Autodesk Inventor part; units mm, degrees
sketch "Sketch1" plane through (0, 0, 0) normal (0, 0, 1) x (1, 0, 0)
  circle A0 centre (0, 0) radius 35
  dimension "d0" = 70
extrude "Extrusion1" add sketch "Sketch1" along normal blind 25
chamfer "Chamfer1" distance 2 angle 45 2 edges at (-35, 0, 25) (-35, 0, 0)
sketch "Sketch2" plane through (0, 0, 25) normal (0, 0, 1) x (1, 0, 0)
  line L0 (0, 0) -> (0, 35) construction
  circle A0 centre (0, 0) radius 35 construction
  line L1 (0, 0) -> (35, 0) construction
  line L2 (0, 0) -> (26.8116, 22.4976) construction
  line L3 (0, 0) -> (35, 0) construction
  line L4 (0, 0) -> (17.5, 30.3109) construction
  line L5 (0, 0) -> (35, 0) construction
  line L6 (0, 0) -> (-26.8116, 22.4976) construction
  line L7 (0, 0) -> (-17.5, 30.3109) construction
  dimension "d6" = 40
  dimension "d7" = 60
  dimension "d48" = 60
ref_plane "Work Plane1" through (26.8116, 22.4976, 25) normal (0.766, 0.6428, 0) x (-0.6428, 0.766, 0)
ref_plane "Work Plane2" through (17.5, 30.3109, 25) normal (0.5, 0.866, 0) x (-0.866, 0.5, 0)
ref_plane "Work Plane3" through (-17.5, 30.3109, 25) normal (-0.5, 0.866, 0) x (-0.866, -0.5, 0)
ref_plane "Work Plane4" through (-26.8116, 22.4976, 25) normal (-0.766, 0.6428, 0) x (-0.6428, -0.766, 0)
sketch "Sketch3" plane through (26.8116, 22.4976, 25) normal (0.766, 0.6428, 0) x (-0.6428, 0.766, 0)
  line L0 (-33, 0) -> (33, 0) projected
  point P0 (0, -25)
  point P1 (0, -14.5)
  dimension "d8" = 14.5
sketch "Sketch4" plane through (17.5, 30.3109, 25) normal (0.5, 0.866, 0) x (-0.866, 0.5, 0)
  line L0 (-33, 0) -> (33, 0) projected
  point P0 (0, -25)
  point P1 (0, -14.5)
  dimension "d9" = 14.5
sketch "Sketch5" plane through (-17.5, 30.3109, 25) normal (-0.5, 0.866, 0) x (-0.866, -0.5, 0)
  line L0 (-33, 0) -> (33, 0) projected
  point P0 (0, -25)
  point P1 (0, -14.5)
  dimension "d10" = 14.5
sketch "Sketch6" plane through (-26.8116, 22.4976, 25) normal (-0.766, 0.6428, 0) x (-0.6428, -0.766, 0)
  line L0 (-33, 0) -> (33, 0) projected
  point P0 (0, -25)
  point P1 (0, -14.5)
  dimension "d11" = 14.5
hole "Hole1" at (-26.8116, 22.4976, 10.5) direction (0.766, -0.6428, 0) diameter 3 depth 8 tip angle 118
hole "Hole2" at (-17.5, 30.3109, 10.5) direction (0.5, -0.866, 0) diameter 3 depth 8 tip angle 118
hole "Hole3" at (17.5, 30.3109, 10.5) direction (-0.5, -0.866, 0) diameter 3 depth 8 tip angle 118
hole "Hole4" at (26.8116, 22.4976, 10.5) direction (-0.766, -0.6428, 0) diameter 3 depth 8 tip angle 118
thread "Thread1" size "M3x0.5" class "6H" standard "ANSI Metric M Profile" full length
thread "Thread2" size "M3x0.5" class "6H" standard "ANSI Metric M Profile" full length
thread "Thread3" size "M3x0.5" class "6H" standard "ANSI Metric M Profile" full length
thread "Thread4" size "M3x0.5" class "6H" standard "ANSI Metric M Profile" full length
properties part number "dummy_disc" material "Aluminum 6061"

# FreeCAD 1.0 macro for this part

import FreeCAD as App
import Part
import Sketcher

V = App.Vector


def edges_at(feature, points):
    """Names of the edges that pass closest to the given points."""
    edges = feature.Shape.Edges
    near = lambda p: min(range(len(edges)), key=lambda i: edges[i].distToShape(Part.Vertex(*p))[0])
    return sorted({f"Edge{near(p) + 1}" for p in points})

doc = App.newDocument("Part")
body = doc.addObject("PartDesign::Body", "Body")

sketch1 = doc.addObject("Sketcher::SketchObject", "Sketch")
body.addObject(sketch1)
sketch1.AttachmentSupport = (doc.XY_Plane, [""])
sketch1.MapMode = "FlatFace"
sketch1.addGeometry(Part.Circle(V(0, 0, 0), V(0, 0, 1), 35), False)
sketch1.addConstraint(Sketcher.Constraint("Coincident", 0, 3, -1, 1))
sketch1.addConstraint(Sketcher.Constraint("Diameter", 0, 70.0))
pad1 = doc.addObject("PartDesign::Pad", "Pad")
body.addObject(pad1)
pad1.Profile = sketch1
pad1.Length = 25
doc.recompute()

chamfer = doc.addObject("PartDesign::Chamfer", "Chamfer")
body.addObject(chamfer)
chamfer.Base = (pad1, edges_at(pad1, [(-35, 0, 25), (-35, 0, 0)]))
chamfer.Size = 2

sketch2 = doc.addObject("Sketcher::SketchObject", "Sketch001")
body.addObject(sketch2)
sketch2.Placement = App.Placement(V(-26.811598, 22.497602, 0), App.Rotation(V(-0.64278761, -0.766044443, 0), V(0, 0, 1), V(-0.766044443, 0.64278761, 0), "ZXY"))
sketch2.addGeometry(Part.Circle(V(0, 10.5, 0), V(0, 0, 1), 1.5), False)
sketch2.addConstraint(Sketcher.Constraint("PointOnObject", 0, 3, -2))
sketch2.addConstraint(Sketcher.Constraint("Diameter", 0, 3.0))
sketch2.addConstraint(Sketcher.Constraint("DistanceY", -1, 1, 0, 3, 10.5))
doc.recompute()
hole = doc.addObject("PartDesign::Hole", "Hole")
body.addObject(hole)
hole.Profile = sketch2
hole.ThreadType = "None"
hole.Diameter = 3
hole.DepthType = "Dimension"
hole.Depth = 8
hole.DrillPoint = "Angled"
hole.DrillPointAngle = 118

sketch3 = doc.addObject("Sketcher::SketchObject", "Sketch002")
body.addObject(sketch3)
sketch3.Placement = App.Placement(V(-17.500005, 30.310897, 0), App.Rotation(V(-0.866025404, -0.5, 0), V(0, 0, 1), V(-0.5, 0.866025404, 0), "ZXY"))
sketch3.addGeometry(Part.Circle(V(0, 10.5, 0), V(0, 0, 1), 1.5), False)
sketch3.addConstraint(Sketcher.Constraint("PointOnObject", 0, 3, -2))
sketch3.addConstraint(Sketcher.Constraint("Diameter", 0, 3.0))
sketch3.addConstraint(Sketcher.Constraint("DistanceY", -1, 1, 0, 3, 10.5))
doc.recompute()
hole2 = doc.addObject("PartDesign::Hole", "Hole001")
body.addObject(hole2)
hole2.Profile = sketch3
hole2.ThreadType = "None"
hole2.Diameter = 3
hole2.DepthType = "Dimension"
hole2.Depth = 8
hole2.DrillPoint = "Angled"
hole2.DrillPointAngle = 118

sketch4 = doc.addObject("Sketcher::SketchObject", "Sketch003")
body.addObject(sketch4)
sketch4.Placement = App.Placement(V(17.500005, 30.310897, 0), App.Rotation(V(-0.866025404, 0.5, 0), V(0, 0, 1), V(0.5, 0.866025404, 0), "ZXY"))
sketch4.addGeometry(Part.Circle(V(0, 10.5, 0), V(0, 0, 1), 1.5), False)
sketch4.addConstraint(Sketcher.Constraint("PointOnObject", 0, 3, -2))
sketch4.addConstraint(Sketcher.Constraint("Diameter", 0, 3.0))
sketch4.addConstraint(Sketcher.Constraint("DistanceY", -1, 1, 0, 3, 10.5))
doc.recompute()
hole3 = doc.addObject("PartDesign::Hole", "Hole002")
body.addObject(hole3)
hole3.Profile = sketch4
hole3.ThreadType = "None"
hole3.Diameter = 3
hole3.DepthType = "Dimension"
hole3.Depth = 8
hole3.DrillPoint = "Angled"
hole3.DrillPointAngle = 118

sketch5 = doc.addObject("Sketcher::SketchObject", "Sketch004")
body.addObject(sketch5)
sketch5.Placement = App.Placement(V(26.811598, 22.497602, 0), App.Rotation(V(-0.64278761, 0.766044443, 0), V(0, 0, 1), V(0.766044443, 0.64278761, 0), "ZXY"))
sketch5.addGeometry(Part.Circle(V(0, 10.5, 0), V(0, 0, 1), 1.5), False)
sketch5.addConstraint(Sketcher.Constraint("PointOnObject", 0, 3, -2))
sketch5.addConstraint(Sketcher.Constraint("Diameter", 0, 3.0))
sketch5.addConstraint(Sketcher.Constraint("DistanceY", -1, 1, 0, 3, 10.5))
doc.recompute()
hole4 = doc.addObject("PartDesign::Hole", "Hole003")
body.addObject(hole4)
hole4.Profile = sketch5
hole4.ThreadType = "None"
hole4.Diameter = 3
hole4.DepthType = "Dimension"
hole4.Depth = 8
hole4.DrillPoint = "Angled"
hole4.DrillPointAngle = 118

doc.recompute()
